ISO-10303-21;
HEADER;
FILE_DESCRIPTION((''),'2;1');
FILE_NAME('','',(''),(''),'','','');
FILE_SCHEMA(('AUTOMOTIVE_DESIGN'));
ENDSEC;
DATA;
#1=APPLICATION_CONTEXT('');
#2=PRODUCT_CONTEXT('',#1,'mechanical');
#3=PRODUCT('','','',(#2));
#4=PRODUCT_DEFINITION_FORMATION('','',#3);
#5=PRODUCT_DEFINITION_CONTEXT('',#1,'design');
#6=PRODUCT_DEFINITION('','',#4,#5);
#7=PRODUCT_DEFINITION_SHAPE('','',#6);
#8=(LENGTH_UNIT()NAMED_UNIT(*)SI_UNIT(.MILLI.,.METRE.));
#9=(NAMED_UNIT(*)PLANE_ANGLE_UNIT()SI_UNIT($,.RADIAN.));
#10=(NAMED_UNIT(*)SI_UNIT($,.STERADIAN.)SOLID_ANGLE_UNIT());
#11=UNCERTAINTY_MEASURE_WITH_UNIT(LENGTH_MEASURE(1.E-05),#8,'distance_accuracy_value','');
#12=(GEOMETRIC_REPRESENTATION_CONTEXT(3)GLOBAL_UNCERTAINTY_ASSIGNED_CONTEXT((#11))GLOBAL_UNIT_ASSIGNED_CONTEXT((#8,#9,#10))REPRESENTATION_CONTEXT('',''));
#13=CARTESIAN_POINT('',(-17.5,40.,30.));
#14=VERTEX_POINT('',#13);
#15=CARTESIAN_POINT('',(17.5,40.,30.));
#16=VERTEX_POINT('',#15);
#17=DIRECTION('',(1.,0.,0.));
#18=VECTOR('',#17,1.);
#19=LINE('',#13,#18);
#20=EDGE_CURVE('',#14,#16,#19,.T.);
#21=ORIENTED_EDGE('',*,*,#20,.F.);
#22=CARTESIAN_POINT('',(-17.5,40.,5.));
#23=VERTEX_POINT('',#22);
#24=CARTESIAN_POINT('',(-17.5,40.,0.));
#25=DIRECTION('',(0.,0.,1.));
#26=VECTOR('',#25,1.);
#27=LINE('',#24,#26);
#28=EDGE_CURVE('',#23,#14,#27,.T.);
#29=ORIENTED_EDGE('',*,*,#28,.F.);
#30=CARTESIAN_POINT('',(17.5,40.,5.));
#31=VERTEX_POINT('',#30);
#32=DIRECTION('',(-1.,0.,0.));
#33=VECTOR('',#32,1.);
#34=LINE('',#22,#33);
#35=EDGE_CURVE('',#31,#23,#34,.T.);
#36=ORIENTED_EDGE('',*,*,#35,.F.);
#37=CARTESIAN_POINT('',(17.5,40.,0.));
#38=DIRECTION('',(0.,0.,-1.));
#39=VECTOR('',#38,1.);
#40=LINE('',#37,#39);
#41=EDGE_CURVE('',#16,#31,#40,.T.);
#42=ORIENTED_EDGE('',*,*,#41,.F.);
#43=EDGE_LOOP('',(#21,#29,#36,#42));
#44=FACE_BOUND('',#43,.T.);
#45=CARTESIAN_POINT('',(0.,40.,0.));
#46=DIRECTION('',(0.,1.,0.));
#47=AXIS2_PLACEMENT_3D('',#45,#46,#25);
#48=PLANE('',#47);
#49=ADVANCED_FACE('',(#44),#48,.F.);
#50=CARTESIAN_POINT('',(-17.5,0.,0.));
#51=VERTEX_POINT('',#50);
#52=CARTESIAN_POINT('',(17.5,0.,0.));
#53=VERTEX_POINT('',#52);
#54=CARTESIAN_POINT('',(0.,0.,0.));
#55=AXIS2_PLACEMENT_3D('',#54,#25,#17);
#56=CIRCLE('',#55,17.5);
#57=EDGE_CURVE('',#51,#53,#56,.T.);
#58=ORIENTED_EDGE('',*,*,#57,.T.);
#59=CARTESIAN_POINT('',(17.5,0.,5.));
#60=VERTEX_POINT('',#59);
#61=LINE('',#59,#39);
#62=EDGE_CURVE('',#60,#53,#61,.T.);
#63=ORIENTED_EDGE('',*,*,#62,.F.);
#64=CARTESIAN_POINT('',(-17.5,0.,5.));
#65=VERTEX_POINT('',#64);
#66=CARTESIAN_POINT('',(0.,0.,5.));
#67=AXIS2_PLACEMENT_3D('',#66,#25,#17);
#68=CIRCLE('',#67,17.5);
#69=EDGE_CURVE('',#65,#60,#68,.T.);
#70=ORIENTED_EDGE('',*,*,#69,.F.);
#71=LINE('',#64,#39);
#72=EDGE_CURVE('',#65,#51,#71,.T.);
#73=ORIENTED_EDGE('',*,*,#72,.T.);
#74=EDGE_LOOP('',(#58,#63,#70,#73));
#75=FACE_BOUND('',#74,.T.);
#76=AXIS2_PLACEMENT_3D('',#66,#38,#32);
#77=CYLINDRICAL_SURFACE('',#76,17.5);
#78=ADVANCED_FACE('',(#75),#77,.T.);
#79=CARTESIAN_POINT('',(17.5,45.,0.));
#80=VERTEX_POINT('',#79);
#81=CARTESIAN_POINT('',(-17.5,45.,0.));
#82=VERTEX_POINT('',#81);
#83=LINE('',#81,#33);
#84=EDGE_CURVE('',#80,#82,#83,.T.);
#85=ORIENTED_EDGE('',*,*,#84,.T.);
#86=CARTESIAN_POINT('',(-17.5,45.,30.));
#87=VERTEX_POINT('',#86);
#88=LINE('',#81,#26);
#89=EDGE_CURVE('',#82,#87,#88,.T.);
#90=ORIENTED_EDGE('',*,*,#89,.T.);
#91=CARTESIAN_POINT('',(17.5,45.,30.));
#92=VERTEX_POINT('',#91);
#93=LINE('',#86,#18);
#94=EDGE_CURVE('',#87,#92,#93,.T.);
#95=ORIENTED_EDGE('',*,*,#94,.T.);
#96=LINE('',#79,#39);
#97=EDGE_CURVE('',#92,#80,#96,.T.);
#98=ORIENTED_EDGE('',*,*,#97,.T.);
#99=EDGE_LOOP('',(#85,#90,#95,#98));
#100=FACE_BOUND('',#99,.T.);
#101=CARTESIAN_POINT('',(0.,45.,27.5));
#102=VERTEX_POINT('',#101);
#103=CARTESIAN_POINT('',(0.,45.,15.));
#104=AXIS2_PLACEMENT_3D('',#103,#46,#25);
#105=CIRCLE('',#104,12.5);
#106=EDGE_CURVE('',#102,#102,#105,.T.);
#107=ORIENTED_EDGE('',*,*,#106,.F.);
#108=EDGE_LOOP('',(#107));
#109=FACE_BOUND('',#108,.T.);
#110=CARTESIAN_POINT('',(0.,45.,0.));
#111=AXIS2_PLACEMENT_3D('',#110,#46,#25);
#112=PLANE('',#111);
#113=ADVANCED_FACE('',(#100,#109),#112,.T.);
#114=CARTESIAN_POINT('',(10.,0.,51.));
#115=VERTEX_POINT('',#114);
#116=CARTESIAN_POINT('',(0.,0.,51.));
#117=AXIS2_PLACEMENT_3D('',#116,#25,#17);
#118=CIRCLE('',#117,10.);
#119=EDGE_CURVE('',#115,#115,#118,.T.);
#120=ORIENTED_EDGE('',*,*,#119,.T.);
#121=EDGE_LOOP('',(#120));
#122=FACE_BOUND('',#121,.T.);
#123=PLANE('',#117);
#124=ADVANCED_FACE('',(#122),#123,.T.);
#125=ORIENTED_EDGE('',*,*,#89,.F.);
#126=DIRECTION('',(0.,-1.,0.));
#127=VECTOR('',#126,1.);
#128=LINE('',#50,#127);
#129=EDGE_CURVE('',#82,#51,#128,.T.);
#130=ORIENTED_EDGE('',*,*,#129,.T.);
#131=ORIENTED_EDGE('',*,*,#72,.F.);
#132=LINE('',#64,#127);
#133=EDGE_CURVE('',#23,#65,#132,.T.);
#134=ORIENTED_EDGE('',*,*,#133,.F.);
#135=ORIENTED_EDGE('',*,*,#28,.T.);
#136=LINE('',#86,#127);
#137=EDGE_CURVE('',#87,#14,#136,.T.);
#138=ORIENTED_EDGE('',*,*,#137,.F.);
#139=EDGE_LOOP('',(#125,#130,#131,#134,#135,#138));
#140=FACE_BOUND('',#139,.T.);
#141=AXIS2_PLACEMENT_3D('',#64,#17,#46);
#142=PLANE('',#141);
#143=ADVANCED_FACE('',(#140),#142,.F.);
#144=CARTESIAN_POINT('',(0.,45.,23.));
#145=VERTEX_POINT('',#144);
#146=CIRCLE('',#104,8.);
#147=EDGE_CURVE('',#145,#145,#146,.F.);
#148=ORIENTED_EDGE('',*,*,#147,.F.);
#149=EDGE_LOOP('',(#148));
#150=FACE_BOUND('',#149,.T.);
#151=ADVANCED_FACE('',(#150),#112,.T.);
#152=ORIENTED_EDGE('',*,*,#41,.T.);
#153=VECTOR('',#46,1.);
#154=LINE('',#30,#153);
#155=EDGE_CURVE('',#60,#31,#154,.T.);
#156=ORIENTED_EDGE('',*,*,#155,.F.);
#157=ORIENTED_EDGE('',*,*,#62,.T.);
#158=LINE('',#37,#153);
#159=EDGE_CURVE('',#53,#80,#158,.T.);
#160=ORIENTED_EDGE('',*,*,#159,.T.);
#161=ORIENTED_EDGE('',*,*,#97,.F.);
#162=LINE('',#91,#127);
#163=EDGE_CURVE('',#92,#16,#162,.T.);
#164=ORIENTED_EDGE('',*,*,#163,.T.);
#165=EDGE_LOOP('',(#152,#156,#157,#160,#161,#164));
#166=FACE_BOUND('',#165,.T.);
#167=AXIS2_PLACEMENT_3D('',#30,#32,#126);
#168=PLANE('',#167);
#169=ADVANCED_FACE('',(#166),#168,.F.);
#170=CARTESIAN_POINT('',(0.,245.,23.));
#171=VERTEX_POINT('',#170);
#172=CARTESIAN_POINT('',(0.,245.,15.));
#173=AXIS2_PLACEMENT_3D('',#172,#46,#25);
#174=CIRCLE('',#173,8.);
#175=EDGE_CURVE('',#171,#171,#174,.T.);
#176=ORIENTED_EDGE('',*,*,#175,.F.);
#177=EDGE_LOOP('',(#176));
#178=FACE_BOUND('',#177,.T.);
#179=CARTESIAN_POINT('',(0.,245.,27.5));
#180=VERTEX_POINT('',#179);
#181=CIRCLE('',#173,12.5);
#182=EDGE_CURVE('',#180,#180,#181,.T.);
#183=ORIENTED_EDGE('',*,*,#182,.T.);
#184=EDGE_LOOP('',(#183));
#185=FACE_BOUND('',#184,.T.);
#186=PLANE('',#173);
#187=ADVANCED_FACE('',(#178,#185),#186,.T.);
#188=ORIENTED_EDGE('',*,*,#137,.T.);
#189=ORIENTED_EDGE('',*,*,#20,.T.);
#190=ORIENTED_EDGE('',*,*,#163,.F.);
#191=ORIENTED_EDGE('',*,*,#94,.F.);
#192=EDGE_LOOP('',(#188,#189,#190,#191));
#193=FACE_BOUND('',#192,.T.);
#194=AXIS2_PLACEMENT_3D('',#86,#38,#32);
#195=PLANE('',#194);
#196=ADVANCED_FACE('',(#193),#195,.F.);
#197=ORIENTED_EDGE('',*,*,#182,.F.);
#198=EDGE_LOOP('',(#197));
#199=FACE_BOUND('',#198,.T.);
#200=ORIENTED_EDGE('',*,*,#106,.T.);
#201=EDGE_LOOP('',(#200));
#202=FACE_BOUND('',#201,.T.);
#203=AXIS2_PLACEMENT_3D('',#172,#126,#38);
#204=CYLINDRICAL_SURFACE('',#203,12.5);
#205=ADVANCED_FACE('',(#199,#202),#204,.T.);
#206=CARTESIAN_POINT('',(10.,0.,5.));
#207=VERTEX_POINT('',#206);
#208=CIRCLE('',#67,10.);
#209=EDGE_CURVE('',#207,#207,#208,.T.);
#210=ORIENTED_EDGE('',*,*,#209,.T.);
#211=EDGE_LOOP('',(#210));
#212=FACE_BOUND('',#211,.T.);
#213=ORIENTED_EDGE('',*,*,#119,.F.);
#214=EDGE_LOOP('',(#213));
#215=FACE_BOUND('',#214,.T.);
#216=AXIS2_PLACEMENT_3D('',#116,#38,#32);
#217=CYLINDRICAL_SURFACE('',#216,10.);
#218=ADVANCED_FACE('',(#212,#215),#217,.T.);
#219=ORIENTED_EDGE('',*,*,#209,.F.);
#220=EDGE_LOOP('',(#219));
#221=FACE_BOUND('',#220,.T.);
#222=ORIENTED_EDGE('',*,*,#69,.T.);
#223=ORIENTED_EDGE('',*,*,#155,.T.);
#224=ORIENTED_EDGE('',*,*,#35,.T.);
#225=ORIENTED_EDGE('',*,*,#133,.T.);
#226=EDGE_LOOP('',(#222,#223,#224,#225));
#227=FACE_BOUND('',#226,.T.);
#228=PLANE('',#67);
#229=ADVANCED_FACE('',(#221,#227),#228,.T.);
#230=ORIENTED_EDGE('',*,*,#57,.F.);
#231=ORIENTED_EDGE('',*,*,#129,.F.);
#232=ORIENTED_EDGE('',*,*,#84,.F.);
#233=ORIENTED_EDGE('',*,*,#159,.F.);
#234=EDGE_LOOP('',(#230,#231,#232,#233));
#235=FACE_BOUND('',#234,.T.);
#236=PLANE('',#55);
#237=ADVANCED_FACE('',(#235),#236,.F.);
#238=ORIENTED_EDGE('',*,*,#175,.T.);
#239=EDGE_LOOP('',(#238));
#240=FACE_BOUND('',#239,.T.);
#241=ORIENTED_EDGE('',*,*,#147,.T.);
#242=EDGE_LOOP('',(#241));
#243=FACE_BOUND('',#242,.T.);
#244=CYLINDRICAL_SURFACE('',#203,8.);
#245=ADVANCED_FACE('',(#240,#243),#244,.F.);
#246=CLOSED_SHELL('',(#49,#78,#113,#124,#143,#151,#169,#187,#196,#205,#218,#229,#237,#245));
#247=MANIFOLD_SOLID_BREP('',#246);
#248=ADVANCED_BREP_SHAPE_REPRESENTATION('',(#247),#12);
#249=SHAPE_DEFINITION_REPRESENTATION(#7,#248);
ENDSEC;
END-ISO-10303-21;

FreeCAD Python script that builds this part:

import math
import FreeCAD as App
import Part
import Sketcher
from FreeCAD import Vector

doc = App.newDocument("Part")
body = doc.addObject("PartDesign::Body", "Body")

# Sketch on XY plane
sketch1 = body.newObject("Sketcher::SketchObject", "Sketch")
sketch1.AttachmentSupport = (doc.getObject("XY_Plane"), [""])
sketch1.MapMode = "FlatFace"
sketch1.addGeometry([
    Part.LineSegment(Vector(-18, 40, 0), Vector(-18, 0, 0)),
    Part.ArcOfCircle(Part.Circle(Vector(0, 0, 0), Vector(0, 0, 1), 18), math.radians(180), math.radians(360)),
    Part.LineSegment(Vector(18, 0, 0), Vector(18, 40, 0)),
    Part.LineSegment(Vector(18, 40, 0), Vector(-18, 40, 0)),
], False)
sketch1.addConstraint([
    Sketcher.Constraint("Tangent", 0, 2, 1, 1),
    Sketcher.Constraint("Tangent", 1, 2, 2, 1),
    Sketcher.Constraint("Coincident", 2, 2, 3, 1),
    Sketcher.Constraint("Coincident", 3, 2, 0, 1),
    Sketcher.Constraint("Vertical", 0),
    Sketcher.Constraint("Vertical", 2),
    Sketcher.Constraint("Horizontal", 3),
    Sketcher.Constraint("Coincident", 1, 3, -1, 1),
    Sketcher.Constraint("Radius", 1, 17.5),
    Sketcher.Constraint("DistanceY", 0, 2, 0, 1, 40.0),
])
pad1 = body.newObject("PartDesign::Pad", "Pad")
pad1.Profile = sketch1
pad1.Length = 5

# Sketch on XY plane
sketch2 = body.newObject("Sketcher::SketchObject", "Sketch001")
sketch2.AttachmentSupport = (doc.getObject("XY_Plane"), [""])
sketch2.MapMode = "FlatFace"
sketch2.AttachmentOffset = App.Placement(Vector(0, 0, 5), App.Rotation())
sketch2.addGeometry(Part.Circle(Vector(0, 0, 0), Vector(0, 0, 1), 10), False)
sketch2.addConstraint([
    Sketcher.Constraint("Coincident", 0, 3, -1, 1),
    Sketcher.Constraint("Diameter", 0, 20.0),
])
pad2 = body.newObject("PartDesign::Pad", "Pad001")
pad2.Profile = sketch2
pad2.Length = 46

# Sketch on XZ plane
sketch3 = body.newObject("Sketcher::SketchObject", "Sketch002")
sketch3.AttachmentSupport = (doc.getObject("XZ_Plane"), [""])
sketch3.MapMode = "FlatFace"
sketch3.AttachmentOffset = App.Placement(Vector(0, 0, -40), App.Rotation())
sketch3.addGeometry([
    Part.LineSegment(Vector(-18, 0, 0), Vector(-18, 30, 0)),
    Part.LineSegment(Vector(-18, 30, 0), Vector(18, 30, 0)),
    Part.LineSegment(Vector(18, 30, 0), Vector(18, 0, 0)),
    Part.LineSegment(Vector(18, 0, 0), Vector(-18, 0, 0)),
], False)
sketch3.addConstraint([
    Sketcher.Constraint("Coincident", 0, 2, 1, 1),
    Sketcher.Constraint("Coincident", 1, 2, 2, 1),
    Sketcher.Constraint("Coincident", 2, 2, 3, 1),
    Sketcher.Constraint("Coincident", 3, 2, 0, 1),
    Sketcher.Constraint("Vertical", 0),
    Sketcher.Constraint("Horizontal", 1),
    Sketcher.Constraint("Vertical", 2),
    Sketcher.Constraint("Horizontal", 3),
    Sketcher.Constraint("Symmetric", 2, 2, 3, 2, -1, 1),
    Sketcher.Constraint("DistanceX", 1, 1, 1, 2, 35.0),
    Sketcher.Constraint("DistanceY", 0, 1, 0, 2, 30.0),
])
pad3 = body.newObject("PartDesign::Pad", "Pad002")
pad3.Profile = sketch3
pad3.Length = 5
pad3.Reversed = True

# Sketch on XZ plane
sketch4 = body.newObject("Sketcher::SketchObject", "Sketch003")
sketch4.AttachmentSupport = (doc.getObject("XZ_Plane"), [""])
sketch4.MapMode = "FlatFace"
sketch4.AttachmentOffset = App.Placement(Vector(0, 0, -45), App.Rotation())
sketch4.addGeometry([
    Part.Circle(Vector(0, 15, 0), Vector(0, 0, 1), 12),
    Part.Circle(Vector(0, 15, 0), Vector(0, 0, 1), 8),
], False)
sketch4.addConstraint([
    Sketcher.Constraint("Coincident", 1, 3, 0, 3),
    Sketcher.Constraint("PointOnObject", 0, 3, -2),
    Sketcher.Constraint("Diameter", 0, 25.0),
    Sketcher.Constraint("Diameter", 1, 16.0),
    Sketcher.Constraint("DistanceY", -1, 1, 0, 3, 15.0),
])
pad4 = body.newObject("PartDesign::Pad", "Pad003")
pad4.Profile = sketch4
pad4.Length = 200
pad4.Reversed = True

doc.recompute()
